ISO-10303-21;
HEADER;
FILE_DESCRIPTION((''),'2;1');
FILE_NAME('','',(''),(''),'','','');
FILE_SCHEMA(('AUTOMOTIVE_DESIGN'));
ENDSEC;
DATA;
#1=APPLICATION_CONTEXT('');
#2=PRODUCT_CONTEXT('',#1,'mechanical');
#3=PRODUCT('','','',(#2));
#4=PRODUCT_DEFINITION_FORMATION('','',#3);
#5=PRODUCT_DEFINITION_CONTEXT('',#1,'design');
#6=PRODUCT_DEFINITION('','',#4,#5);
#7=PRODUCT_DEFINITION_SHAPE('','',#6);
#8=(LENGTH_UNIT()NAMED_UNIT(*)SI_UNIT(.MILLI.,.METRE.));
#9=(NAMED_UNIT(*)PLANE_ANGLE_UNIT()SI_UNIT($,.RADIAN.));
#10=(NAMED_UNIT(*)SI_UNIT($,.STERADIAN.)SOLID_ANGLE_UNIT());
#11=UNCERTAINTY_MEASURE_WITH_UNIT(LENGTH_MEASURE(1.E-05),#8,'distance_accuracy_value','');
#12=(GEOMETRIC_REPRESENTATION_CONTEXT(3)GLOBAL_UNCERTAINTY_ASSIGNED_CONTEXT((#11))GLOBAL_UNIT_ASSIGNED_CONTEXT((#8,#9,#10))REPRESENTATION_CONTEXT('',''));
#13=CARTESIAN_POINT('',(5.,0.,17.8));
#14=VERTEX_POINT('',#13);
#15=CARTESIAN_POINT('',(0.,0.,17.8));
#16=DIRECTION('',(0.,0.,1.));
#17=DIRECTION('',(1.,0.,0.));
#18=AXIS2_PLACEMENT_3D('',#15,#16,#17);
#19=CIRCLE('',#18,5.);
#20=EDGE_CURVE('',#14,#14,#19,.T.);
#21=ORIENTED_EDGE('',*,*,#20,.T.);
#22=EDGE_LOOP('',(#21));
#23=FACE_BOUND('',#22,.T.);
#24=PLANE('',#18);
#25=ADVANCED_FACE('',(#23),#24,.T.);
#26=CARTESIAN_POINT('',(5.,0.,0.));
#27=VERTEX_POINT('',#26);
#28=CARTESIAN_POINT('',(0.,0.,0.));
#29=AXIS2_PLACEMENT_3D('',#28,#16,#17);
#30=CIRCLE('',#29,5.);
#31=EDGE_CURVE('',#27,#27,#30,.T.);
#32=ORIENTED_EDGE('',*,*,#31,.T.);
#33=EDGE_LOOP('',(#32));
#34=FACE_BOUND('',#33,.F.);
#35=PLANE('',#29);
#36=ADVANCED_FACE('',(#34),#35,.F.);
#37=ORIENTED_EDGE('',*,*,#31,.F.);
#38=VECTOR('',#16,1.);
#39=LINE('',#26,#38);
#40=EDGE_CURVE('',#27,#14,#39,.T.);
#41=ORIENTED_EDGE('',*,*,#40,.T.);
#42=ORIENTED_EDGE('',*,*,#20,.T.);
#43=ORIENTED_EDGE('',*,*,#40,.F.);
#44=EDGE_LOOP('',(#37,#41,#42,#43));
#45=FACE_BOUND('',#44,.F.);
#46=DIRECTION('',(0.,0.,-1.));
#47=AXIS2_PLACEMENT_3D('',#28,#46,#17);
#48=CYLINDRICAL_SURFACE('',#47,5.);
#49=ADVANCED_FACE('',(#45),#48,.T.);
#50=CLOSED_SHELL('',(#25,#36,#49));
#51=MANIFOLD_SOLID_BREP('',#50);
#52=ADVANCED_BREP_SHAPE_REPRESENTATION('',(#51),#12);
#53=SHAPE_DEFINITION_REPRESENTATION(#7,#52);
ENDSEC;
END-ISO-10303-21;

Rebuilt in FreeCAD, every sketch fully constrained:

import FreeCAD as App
import Part
import Sketcher

V = App.Vector
Q = App.Units.Quantity

doc = App.newDocument("Part")
body = doc.addObject("PartDesign::Body", "Body")

# Sketch on XY plane
sketch1 = body.newObject("Sketcher::SketchObject", "Sketch")
sketch1.AttachmentSupport = (doc.getObject("XY_Plane"), [""])
sketch1.MapMode = "FlatFace"
sketch1.addGeometry(Part.Circle(V(0, 0, 0), V(0, 0, 1), 5), False)
sketch1.addConstraint(Sketcher.Constraint("Coincident", 0, 3, -1, 1))
sketch1.addConstraint(Sketcher.Constraint("Diameter", 0, Q("10 mm")))
pad1 = body.newObject("PartDesign::Pad", "Pad")
pad1.Profile = sketch1
pad1.Length = 17.8

doc.recompute()
